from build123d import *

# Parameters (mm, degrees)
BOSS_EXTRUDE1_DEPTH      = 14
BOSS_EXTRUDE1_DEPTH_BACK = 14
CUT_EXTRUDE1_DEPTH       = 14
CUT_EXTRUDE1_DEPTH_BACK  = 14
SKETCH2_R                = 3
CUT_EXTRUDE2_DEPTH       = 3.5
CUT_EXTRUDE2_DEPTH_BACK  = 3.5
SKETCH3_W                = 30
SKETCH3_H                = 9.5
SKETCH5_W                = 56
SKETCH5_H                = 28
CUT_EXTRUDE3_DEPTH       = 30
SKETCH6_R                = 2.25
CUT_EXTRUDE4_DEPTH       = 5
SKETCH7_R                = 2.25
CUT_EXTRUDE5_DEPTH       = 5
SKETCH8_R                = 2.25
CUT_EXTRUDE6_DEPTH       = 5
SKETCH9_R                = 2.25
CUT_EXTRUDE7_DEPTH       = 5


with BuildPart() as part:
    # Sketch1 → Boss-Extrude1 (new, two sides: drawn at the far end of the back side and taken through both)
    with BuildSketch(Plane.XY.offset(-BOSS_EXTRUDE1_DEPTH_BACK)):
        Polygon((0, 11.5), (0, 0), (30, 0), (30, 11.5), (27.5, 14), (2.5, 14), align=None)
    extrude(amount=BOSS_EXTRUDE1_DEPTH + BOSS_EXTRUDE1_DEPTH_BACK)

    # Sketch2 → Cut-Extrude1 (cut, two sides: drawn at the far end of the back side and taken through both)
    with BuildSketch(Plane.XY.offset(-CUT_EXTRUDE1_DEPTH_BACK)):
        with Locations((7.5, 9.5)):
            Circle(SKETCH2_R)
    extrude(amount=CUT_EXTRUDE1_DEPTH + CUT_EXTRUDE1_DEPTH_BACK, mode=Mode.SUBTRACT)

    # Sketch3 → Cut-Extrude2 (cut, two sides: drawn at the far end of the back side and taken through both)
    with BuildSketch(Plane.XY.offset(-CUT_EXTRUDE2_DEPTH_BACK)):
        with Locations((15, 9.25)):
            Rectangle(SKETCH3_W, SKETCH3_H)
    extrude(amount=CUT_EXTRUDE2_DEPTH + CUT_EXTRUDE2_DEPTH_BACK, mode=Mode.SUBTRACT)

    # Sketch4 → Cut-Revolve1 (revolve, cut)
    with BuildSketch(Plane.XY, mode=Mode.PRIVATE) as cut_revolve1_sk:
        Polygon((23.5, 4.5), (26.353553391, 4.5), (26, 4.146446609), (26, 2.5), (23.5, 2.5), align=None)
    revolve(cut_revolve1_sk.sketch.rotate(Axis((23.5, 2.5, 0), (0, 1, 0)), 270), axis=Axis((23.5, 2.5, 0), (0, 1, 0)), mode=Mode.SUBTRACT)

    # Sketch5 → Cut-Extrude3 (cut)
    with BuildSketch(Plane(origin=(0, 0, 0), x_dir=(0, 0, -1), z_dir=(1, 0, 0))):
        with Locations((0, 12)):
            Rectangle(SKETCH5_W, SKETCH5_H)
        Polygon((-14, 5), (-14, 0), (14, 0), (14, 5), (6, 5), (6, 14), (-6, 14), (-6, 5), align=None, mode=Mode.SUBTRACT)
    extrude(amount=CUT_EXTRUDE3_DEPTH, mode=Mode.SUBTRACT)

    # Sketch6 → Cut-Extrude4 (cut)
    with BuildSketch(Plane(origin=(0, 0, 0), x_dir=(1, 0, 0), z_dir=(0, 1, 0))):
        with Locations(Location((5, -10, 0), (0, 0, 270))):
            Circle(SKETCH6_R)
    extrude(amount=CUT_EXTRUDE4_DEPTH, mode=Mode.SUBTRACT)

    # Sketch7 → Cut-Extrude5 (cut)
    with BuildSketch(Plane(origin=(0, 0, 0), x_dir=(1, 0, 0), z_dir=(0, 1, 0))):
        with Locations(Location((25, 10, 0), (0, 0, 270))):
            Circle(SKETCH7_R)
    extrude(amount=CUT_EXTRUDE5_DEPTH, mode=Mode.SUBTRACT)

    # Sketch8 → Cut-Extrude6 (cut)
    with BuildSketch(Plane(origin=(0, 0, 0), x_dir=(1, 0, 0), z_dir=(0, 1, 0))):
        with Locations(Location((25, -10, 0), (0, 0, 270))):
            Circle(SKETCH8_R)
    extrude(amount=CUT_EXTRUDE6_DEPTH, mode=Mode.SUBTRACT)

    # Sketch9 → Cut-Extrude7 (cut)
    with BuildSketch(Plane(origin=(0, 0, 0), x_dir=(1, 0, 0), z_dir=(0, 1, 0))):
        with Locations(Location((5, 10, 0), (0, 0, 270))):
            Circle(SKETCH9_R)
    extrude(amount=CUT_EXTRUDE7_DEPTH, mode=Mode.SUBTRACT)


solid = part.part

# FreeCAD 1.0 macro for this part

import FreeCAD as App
import Part
import Sketcher
Q = App.Units.Quantity

doc = App.newDocument("Part")
params = doc.addObject("Spreadsheet::Sheet", "Params")
for row, (alias, value) in enumerate([
    ("sketch1_width", "30 mm"),
    ("sketch1_width2", "25 mm"),
    ("sketch1_height", "11.5 mm"),
    ("pad1_length", "14 mm"),
    ("pad1_length2", "14 mm"),
    ("sketch2_diameter", "6 mm"),
    ("sketch3_width", "30 mm"),
    ("sketch3_height", "9.5 mm"),
    ("pocket2_length", "3.5 mm"),
    ("pocket2_length2", "3.5 mm"),
    ("sketch4_height", "2 mm"),
    ("sketch4_width", "2.5 mm"),
    ("sketch4_length", "0.5 mm"),
    ("groove_angle", "360 deg"),
    ("sketch5_width", "28 mm"),
    ("sketch5_width2", "5 mm"),
    ("sketch5_width3", "9 mm"),
    ("sketch5_height", "56 mm"),
    ("sketch5_height2", "8 mm"),
    ("pocket3_length", "30 mm"),
    ("sketch6_diameter", "4.5 mm"),
    ("pocket4_length", "5 mm"),
    ("sketch7_diameter", "4.5 mm"),
    ("pocket5_length", "5 mm"),
    ("sketch8_diameter", "4.5 mm"),
    ("pocket6_length", "5 mm"),
    ("sketch9_diameter", "4.5 mm"),
    ("pocket7_length", "5 mm"),
], start=1):
    params.set(f"A{row}", alias)
    params.set(f"B{row}", "=" + value)
    params.setAlias(f"B{row}", alias)

body = doc.addObject("PartDesign::Body", "Body")

sketch1 = body.newObject("Sketcher::SketchObject", "Sketch")
sketch1.AttachmentSupport = (doc.getObject("XY_Plane"), [""])
sketch1.MapMode = "FlatFace"
sketch1.addGeometry(Part.LineSegment(App.Vector(0, 11.5, 0), App.Vector(0, 0, 0)), False)
sketch1.addGeometry(Part.LineSegment(App.Vector(0, 0, 0), App.Vector(30, 0, 0)), False)
sketch1.addGeometry(Part.LineSegment(App.Vector(30, 0, 0), App.Vector(30, 11.5, 0)), False)
sketch1.addGeometry(Part.LineSegment(App.Vector(30, 11.5, 0), App.Vector(27.5, 14, 0)), False)
sketch1.addGeometry(Part.LineSegment(App.Vector(27.5, 14, 0), App.Vector(2.5, 14, 0)), False)
sketch1.addGeometry(Part.LineSegment(App.Vector(2.5, 14, 0), App.Vector(0, 11.5, 0)), False)
sketch1.addConstraint(Sketcher.Constraint("Coincident", 0, 2, 1, 1))
sketch1.addConstraint(Sketcher.Constraint("Coincident", 1, 2, 2, 1))
sketch1.addConstraint(Sketcher.Constraint("Coincident", 2, 2, 3, 1))
sketch1.addConstraint(Sketcher.Constraint("Coincident", 3, 2, 4, 1))
sketch1.addConstraint(Sketcher.Constraint("Coincident", 4, 2, 5, 1))
sketch1.addConstraint(Sketcher.Constraint("Coincident", 5, 2, 0, 1))
sketch1.addConstraint(Sketcher.Constraint("Vertical", 0))
sketch1.addConstraint(Sketcher.Constraint("Horizontal", 1))
sketch1.addConstraint(Sketcher.Constraint("Vertical", 2))
sketch1.addConstraint(Sketcher.Constraint("Horizontal", 4))
sketch1.addConstraint(Sketcher.Constraint("Coincident", 0, 2, -1, 1))
sketch1.addConstraint(Sketcher.Constraint("Perpendicular", 3, 5))
sketch1.addConstraint(Sketcher.Constraint("Horizontal", 2, 2, 5, 2))
sketch1.addConstraint(Sketcher.Constraint("Equal", 3, 5))
sketch1.addConstraint(Sketcher.Constraint("DistanceX", 1, 1, 1, 2, 30.0))
sketch1.addConstraint(Sketcher.Constraint("DistanceX", 4, 2, 4, 1, 25.0))
sketch1.addConstraint(Sketcher.Constraint("DistanceY", 0, 2, 0, 1, 11.5))
sketch1.setExpression("Constraints[14]", "Params.sketch1_width")
sketch1.setExpression("Constraints[15]", "Params.sketch1_width2")
sketch1.setExpression("Constraints[16]", "Params.sketch1_height")
pad1 = body.newObject("PartDesign::Pad", "Pad")
pad1.Profile = sketch1
pad1.Type = "TwoLengths"
pad1.setExpression("Length", "Params.pad1_length")
pad1.setExpression("Length2", "Params.pad1_length2")

sketch2 = body.newObject("Sketcher::SketchObject", "Sketch001")
sketch2.AttachmentSupport = (doc.getObject("XY_Plane"), [""])
sketch2.MapMode = "FlatFace"
sketch2.addGeometry(Part.Circle(App.Vector(7.5, 9.5, 0), App.Vector(0, 0, 1), 3), False)
sketch2.addConstraint(Sketcher.Constraint("Diameter", 0, 6.0))
sketch2.addConstraint(Sketcher.Constraint("DistanceX", -1, 1, 0, 3, 7.5))
sketch2.addConstraint(Sketcher.Constraint("DistanceY", -1, 1, 0, 3, 9.5))
sketch2.setExpression("Constraints[0]", "Params.sketch2_diameter")
pocket1 = body.newObject("PartDesign::Pocket", "Pocket")
pocket1.Profile = sketch2
pocket1.Type = "ThroughAll"
pocket1.Midplane = True

sketch3 = body.newObject("Sketcher::SketchObject", "Sketch002")
sketch3.AttachmentSupport = (doc.getObject("XY_Plane"), [""])
sketch3.MapMode = "FlatFace"
sketch3.addGeometry(Part.LineSegment(App.Vector(0, 14, 0), App.Vector(0, 4, 0)), False)
sketch3.addGeometry(Part.LineSegment(App.Vector(0, 4, 0), App.Vector(30, 4, 0)), False)
sketch3.addGeometry(Part.LineSegment(App.Vector(30, 4, 0), App.Vector(30, 14, 0)), False)
sketch3.addGeometry(Part.LineSegment(App.Vector(30, 14, 0), App.Vector(0, 14, 0)), False)
sketch3.addConstraint(Sketcher.Constraint("Coincident", 0, 2, 1, 1))
sketch3.addConstraint(Sketcher.Constraint("Coincident", 1, 2, 2, 1))
sketch3.addConstraint(Sketcher.Constraint("Coincident", 2, 2, 3, 1))
sketch3.addConstraint(Sketcher.Constraint("Coincident", 3, 2, 0, 1))
sketch3.addConstraint(Sketcher.Constraint("Vertical", 0))
sketch3.addConstraint(Sketcher.Constraint("Horizontal", 1))
sketch3.addConstraint(Sketcher.Constraint("Vertical", 2))
sketch3.addConstraint(Sketcher.Constraint("Horizontal", 3))
sketch3.addConstraint(Sketcher.Constraint("PointOnObject", 0, 2, -2))
sketch3.addConstraint(Sketcher.Constraint("DistanceX", 1, 1, 1, 2, 30.0))
sketch3.addConstraint(Sketcher.Constraint("DistanceY", 0, 2, 0, 1, 9.5))
sketch3.addConstraint(Sketcher.Constraint("DistanceY", -1, 1, 2, 2, 14.0))
sketch3.setExpression("Constraints[9]", "Params.sketch3_width")
sketch3.setExpression("Constraints[10]", "Params.sketch3_height")
pocket2 = body.newObject("PartDesign::Pocket", "Pocket001")
pocket2.Profile = sketch3
pocket2.Type = "TwoLengths"
pocket2.setExpression("Length", "Params.pocket2_length")
pocket2.setExpression("Length2", "Params.pocket2_length2")
pocket2.Reversed = True

sketch4 = body.newObject("Sketcher::SketchObject", "Sketch003")
sketch4.AttachmentSupport = (doc.getObject("XY_Plane"), [""])
sketch4.MapMode = "FlatFace"
sketch4.addGeometry(Part.LineSegment(App.Vector(26.4, 4.5, 0), App.Vector(23.5, 4.5, 0)), False)
sketch4.addGeometry(Part.LineSegment(App.Vector(23.5, 4.5, 0), App.Vector(23.5, 2.5, 0)), False)
sketch4.addGeometry(Part.LineSegment(App.Vector(23.5, 2.5, 0), App.Vector(26, 2.5, 0)), False)
sketch4.addGeometry(Part.LineSegment(App.Vector(26, 2.5, 0), App.Vector(26, 4.1, 0)), False)
sketch4.addGeometry(Part.LineSegment(App.Vector(26, 4.1, 0), App.Vector(26.4, 4.5, 0)), False)
sketch4.addGeometry(Part.LineSegment(App.Vector(23.5, 2.5, 0), App.Vector(23.5, 4.5, 0)), True)
sketch4.addConstraint(Sketcher.Constraint("Coincident", 0, 2, 1, 1))
sketch4.addConstraint(Sketcher.Constraint("Coincident", 1, 2, 2, 1))
sketch4.addConstraint(Sketcher.Constraint("Coincident", 2, 2, 3, 1))
sketch4.addConstraint(Sketcher.Constraint("Coincident", 3, 2, 4, 1))
sketch4.addConstraint(Sketcher.Constraint("Coincident", 4, 2, 0, 1))
sketch4.addConstraint(Sketcher.Constraint("Horizontal", 0))
sketch4.addConstraint(Sketcher.Constraint("Vertical", 1))
sketch4.addConstraint(Sketcher.Constraint("Horizontal", 2))
sketch4.addConstraint(Sketcher.Constraint("Vertical", 3))
sketch4.addConstraint(Sketcher.Constraint("Vertical", 5))
sketch4.addConstraint(Sketcher.Constraint("Coincident", 5, 1, 1, 2))
sketch4.addConstraint(Sketcher.Constraint("Horizontal", 4, 2, 5, 2))
sketch4.addConstraint(Sketcher.Constraint("DistanceY", 1, 2, 1, 1, 2.0))
sketch4.addConstraint(Sketcher.Constraint("Angle", 4, Q("45 deg")))
sketch4.addConstraint(Sketcher.Constraint("DistanceX", 2, 1, 2, 2, 2.5))
sketch4.addConstraint(Sketcher.Constraint("DistanceX", -1, 1, 2, 2, 26.0))
sketch4.addConstraint(Sketcher.Constraint("Distance", 4, 0.5))
sketch4.addConstraint(Sketcher.Constraint("DistanceY", -1, 1, 0, 2, 4.5))
sketch4.setExpression("Constraints[12]", "Params.sketch4_height")
sketch4.setExpression("Constraints[14]", "Params.sketch4_width")
sketch4.setExpression("Constraints[16]", "Params.sketch4_length")
groove = body.newObject("PartDesign::Groove", "Groove")
groove.Profile = sketch4
groove.ReferenceAxis = (sketch4, ["Axis0"])
groove.setExpression("Angle", "Params.groove_angle")

sketch5 = body.newObject("Sketcher::SketchObject", "Sketch004")
sketch5.AttachmentSupport = (doc.getObject("YZ_Plane"), [""])
sketch5.MapMode = "FlatFace"
sketch5.addGeometry(Part.LineSegment(App.Vector(26, 28, 0), App.Vector(-2, 28, 0)), False)
sketch5.addGeometry(Part.LineSegment(App.Vector(-2, 28, 0), App.Vector(-2, -28, 0)), False)
sketch5.addGeometry(Part.LineSegment(App.Vector(-2, -28, 0), App.Vector(26, -28, 0)), False)
sketch5.addGeometry(Part.LineSegment(App.Vector(26, -28, 0), App.Vector(26, 28, 0)), False)
sketch5.addGeometry(Part.LineSegment(App.Vector(0, 14, 0), App.Vector(5, 14, 0)), False)
sketch5.addGeometry(Part.LineSegment(App.Vector(5, 14, 0), App.Vector(5, 6, 0)), False)
sketch5.addGeometry(Part.LineSegment(App.Vector(5, 6, 0), App.Vector(14, 6, 0)), False)
sketch5.addGeometry(Part.LineSegment(App.Vector(14, 6, 0), App.Vector(14, -6, 0)), False)
sketch5.addGeometry(Part.LineSegment(App.Vector(14, -6, 0), App.Vector(5, -6, 0)), False)
sketch5.addGeometry(Part.LineSegment(App.Vector(5, -6, 0), App.Vector(5, -14, 0)), False)
sketch5.addGeometry(Part.LineSegment(App.Vector(5, -14, 0), App.Vector(0, -14, 0)), False)
sketch5.addGeometry(Part.LineSegment(App.Vector(0, -14, 0), App.Vector(0, 14, 0)), False)
sketch5.addConstraint(Sketcher.Constraint("Coincident", 0, 2, 1, 1))
sketch5.addConstraint(Sketcher.Constraint("Coincident", 1, 2, 2, 1))
sketch5.addConstraint(Sketcher.Constraint("Coincident", 2, 2, 3, 1))
sketch5.addConstraint(Sketcher.Constraint("Coincident", 3, 2, 0, 1))
sketch5.addConstraint(Sketcher.Constraint("Coincident", 4, 2, 5, 1))
sketch5.addConstraint(Sketcher.Constraint("Coincident", 5, 2, 6, 1))
sketch5.addConstraint(Sketcher.Constraint("Coincident", 6, 2, 7, 1))
sketch5.addConstraint(Sketcher.Constraint("Coincident", 7, 2, 8, 1))
sketch5.addConstraint(Sketcher.Constraint("Coincident", 8, 2, 9, 1))
sketch5.addConstraint(Sketcher.Constraint("Coincident", 9, 2, 10, 1))
sketch5.addConstraint(Sketcher.Constraint("Coincident", 10, 2, 11, 1))
sketch5.addConstraint(Sketcher.Constraint("Coincident", 11, 2, 4, 1))
sketch5.addConstraint(Sketcher.Constraint("Horizontal", 0))
sketch5.addConstraint(Sketcher.Constraint("Vertical", 1))
sketch5.addConstraint(Sketcher.Constraint("Horizontal", 2))
sketch5.addConstraint(Sketcher.Constraint("Vertical", 3))
sketch5.addConstraint(Sketcher.Constraint("Horizontal", 4))
sketch5.addConstraint(Sketcher.Constraint("Vertical", 5))
sketch5.addConstraint(Sketcher.Constraint("Horizontal", 6))
sketch5.addConstraint(Sketcher.Constraint("Vertical", 7))
sketch5.addConstraint(Sketcher.Constraint("Horizontal", 8))
sketch5.addConstraint(Sketcher.Constraint("Vertical", 9))
sketch5.addConstraint(Sketcher.Constraint("Horizontal", 10))
sketch5.addConstraint(Sketcher.Constraint("Vertical", 11))
sketch5.addConstraint(Sketcher.Constraint("Symmetric", 10, 2, 11, 2, -1, 1))
sketch5.addConstraint(Sketcher.Constraint("Symmetric", 5, 2, 8, 2, -1))
sketch5.addConstraint(Sketcher.Constraint("Equal", 2, 11))
sketch5.addConstraint(Sketcher.Constraint("DistanceX", 0, 2, 0, 1, 28.0))
sketch5.addConstraint(Sketcher.Constraint("DistanceX", 4, 1, 4, 2, 5.0))
sketch5.addConstraint(Sketcher.Constraint("DistanceX", 6, 1, 6, 2, 9.0))
sketch5.addConstraint(Sketcher.Constraint("DistanceY", 1, 2, 1, 1, 56.0))
sketch5.addConstraint(Sketcher.Constraint("DistanceY", 5, 2, 5, 1, 8.0))
sketch5.addConstraint(Sketcher.Constraint("DistanceX", 0, 2, -1, 1, 2.0))
sketch5.addConstraint(Sketcher.Constraint("DistanceY", -1, 1, 0, 2, 28.0))
sketch5.setExpression("Constraints[27]", "Params.sketch5_width")
sketch5.setExpression("Constraints[28]", "Params.sketch5_width2")
sketch5.setExpression("Constraints[29]", "Params.sketch5_width3")
sketch5.setExpression("Constraints[30]", "Params.sketch5_height")
sketch5.setExpression("Constraints[31]", "Params.sketch5_height2")
pocket3 = body.newObject("PartDesign::Pocket", "Pocket002")
pocket3.Profile = sketch5
pocket3.setExpression("Length", "Params.pocket3_length")
pocket3.Reversed = True

sketch6 = body.newObject("Sketcher::SketchObject", "Sketch005")
sketch6.AttachmentSupport = (doc.getObject("XZ_Plane"), [""])
sketch6.MapMode = "FlatFace"
sketch6.addGeometry(Part.Circle(App.Vector(5, 10, 0), App.Vector(0, 0, 1), 2.2), False)
sketch6.addConstraint(Sketcher.Constraint("Diameter", 0, 4.5))
sketch6.addConstraint(Sketcher.Constraint("DistanceX", -1, 1, 0, 3, 5.0))
sketch6.addConstraint(Sketcher.Constraint("DistanceY", -1, 1, 0, 3, 10.0))
sketch6.setExpression("Constraints[0]", "Params.sketch6_diameter")
pocket4 = body.newObject("PartDesign::Pocket", "Pocket003")
pocket4.Profile = sketch6
pocket4.setExpression("Length", "Params.pocket4_length")

sketch7 = body.newObject("Sketcher::SketchObject", "Sketch006")
sketch7.AttachmentSupport = (doc.getObject("XZ_Plane"), [""])
sketch7.MapMode = "FlatFace"
sketch7.addGeometry(Part.Circle(App.Vector(25, -10, 0), App.Vector(0, 0, 1), 2.2), False)
sketch7.addConstraint(Sketcher.Constraint("Diameter", 0, 4.5))
sketch7.addConstraint(Sketcher.Constraint("DistanceX", -1, 1, 0, 3, 25.0))
sketch7.addConstraint(Sketcher.Constraint("DistanceY", 0, 3, -1, 1, 10.0))
sketch7.setExpression("Constraints[0]", "Params.sketch7_diameter")
pocket5 = body.newObject("PartDesign::Pocket", "Pocket004")
pocket5.Profile = sketch7
pocket5.setExpression("Length", "Params.pocket5_length")

sketch8 = body.newObject("Sketcher::SketchObject", "Sketch007")
sketch8.AttachmentSupport = (doc.getObject("XZ_Plane"), [""])
sketch8.MapMode = "FlatFace"
sketch8.addGeometry(Part.Circle(App.Vector(25, 10, 0), App.Vector(0, 0, 1), 2.2), False)
sketch8.addConstraint(Sketcher.Constraint("Diameter", 0, 4.5))
sketch8.addConstraint(Sketcher.Constraint("DistanceX", -1, 1, 0, 3, 25.0))
sketch8.addConstraint(Sketcher.Constraint("DistanceY", -1, 1, 0, 3, 10.0))
sketch8.setExpression("Constraints[0]", "Params.sketch8_diameter")
pocket6 = body.newObject("PartDesign::Pocket", "Pocket005")
pocket6.Profile = sketch8
pocket6.setExpression("Length", "Params.pocket6_length")

sketch9 = body.newObject("Sketcher::SketchObject", "Sketch008")
sketch9.AttachmentSupport = (doc.getObject("XZ_Plane"), [""])
sketch9.MapMode = "FlatFace"
sketch9.addGeometry(Part.Circle(App.Vector(5, -10, 0), App.Vector(0, 0, 1), 2.2), False)
sketch9.addConstraint(Sketcher.Constraint("Diameter", 0, 4.5))
sketch9.addConstraint(Sketcher.Constraint("DistanceX", -1, 1, 0, 3, 5.0))
sketch9.addConstraint(Sketcher.Constraint("DistanceY", 0, 3, -1, 1, 10.0))
sketch9.setExpression("Constraints[0]", "Params.sketch9_diameter")
pocket7 = body.newObject("PartDesign::Pocket", "Pocket006")
pocket7.Profile = sketch9
pocket7.setExpression("Length", "Params.pocket7_length")

doc.recompute()
